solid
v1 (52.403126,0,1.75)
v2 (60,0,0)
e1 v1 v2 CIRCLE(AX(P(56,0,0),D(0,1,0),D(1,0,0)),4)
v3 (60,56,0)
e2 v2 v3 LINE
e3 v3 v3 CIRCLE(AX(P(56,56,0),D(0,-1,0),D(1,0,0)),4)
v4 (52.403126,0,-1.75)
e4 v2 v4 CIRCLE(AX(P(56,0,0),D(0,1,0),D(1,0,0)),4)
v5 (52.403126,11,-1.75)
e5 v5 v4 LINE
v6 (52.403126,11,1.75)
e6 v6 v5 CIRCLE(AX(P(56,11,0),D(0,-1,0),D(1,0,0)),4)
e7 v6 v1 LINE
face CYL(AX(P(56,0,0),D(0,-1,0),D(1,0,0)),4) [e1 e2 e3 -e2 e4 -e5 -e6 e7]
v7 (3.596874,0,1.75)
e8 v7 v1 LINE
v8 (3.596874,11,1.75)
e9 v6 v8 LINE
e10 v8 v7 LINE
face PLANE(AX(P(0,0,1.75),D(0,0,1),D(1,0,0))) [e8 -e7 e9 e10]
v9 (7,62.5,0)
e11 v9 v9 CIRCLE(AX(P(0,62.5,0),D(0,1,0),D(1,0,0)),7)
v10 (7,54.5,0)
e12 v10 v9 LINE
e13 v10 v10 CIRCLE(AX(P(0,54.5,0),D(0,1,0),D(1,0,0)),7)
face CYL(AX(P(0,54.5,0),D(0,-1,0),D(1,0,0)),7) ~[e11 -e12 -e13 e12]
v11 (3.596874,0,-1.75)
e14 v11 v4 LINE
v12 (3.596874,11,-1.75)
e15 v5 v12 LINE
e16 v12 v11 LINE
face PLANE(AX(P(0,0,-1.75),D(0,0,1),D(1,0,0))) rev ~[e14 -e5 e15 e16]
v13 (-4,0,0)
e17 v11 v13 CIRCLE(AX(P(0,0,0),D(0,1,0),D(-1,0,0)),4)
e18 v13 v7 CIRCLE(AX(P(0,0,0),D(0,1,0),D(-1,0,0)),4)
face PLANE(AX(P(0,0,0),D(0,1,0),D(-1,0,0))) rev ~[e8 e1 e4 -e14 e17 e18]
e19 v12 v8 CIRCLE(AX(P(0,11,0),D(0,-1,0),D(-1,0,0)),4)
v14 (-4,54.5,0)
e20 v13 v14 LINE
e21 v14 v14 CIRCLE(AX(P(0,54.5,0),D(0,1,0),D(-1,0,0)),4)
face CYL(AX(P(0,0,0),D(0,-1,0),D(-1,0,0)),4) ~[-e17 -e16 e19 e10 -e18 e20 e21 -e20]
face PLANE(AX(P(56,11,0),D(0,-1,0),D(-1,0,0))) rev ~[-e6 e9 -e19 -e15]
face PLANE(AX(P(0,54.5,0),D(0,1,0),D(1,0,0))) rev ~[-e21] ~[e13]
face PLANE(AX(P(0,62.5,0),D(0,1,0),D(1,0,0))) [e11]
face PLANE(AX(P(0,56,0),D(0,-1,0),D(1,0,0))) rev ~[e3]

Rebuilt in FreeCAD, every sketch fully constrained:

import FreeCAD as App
import Part
import Sketcher

V = App.Vector

doc = App.newDocument("Part")
params = doc.addObject("Spreadsheet::Sheet", "Params")
for row, (alias, value) in enumerate([
    ("sketch1_diameter", "8 mm"),
    ("pad1_length", "54.5 mm"),
    ("sketch2_diameter", "14 mm"),
    ("pad2_length", "8 mm"),
    ("sketch3_width", "56 mm"),
    ("sketch3_height", "11 mm"),
    ("pad3_length", "3.5 mm"),
    ("sketch4_diameter", "8 mm"),
    ("pad4_length", "56 mm"),
], start=1):
    params.set(f"A{row}", alias)
    params.set(f"B{row}", "=" + value)
    params.setAlias(f"B{row}", alias)

body = doc.addObject("PartDesign::Body", "Body")

sketch1 = body.newObject("Sketcher::SketchObject", "Sketch")
sketch1.AttachmentSupport = (doc.getObject("XZ_Plane"), [""])
sketch1.MapMode = "FlatFace"
sketch1.addGeometry(Part.Circle(V(0, 0, 0), V(0, 0, 1), 4), False)
sketch1.addConstraint([
    Sketcher.Constraint("Coincident", 0, 3, -1, 1),
    Sketcher.Constraint("Diameter", 0, 8.0),
])
sketch1.setExpression("Constraints[1]", "Params.sketch1_diameter")
pad1 = body.newObject("PartDesign::Pad", "Pad")
pad1.Profile = sketch1
pad1.setExpression("Length", "Params.pad1_length")
pad1.Reversed = True

sketch2 = body.newObject("Sketcher::SketchObject", "Sketch001")
sketch2.AttachmentSupport = (doc.getObject("XZ_Plane"), [""])
sketch2.MapMode = "FlatFace"
sketch2.AttachmentOffset = App.Placement(V(0, 0, -54.5), App.Rotation())
sketch2.addGeometry(Part.Circle(V(0, 0, 0), V(0, 0, 1), 7), False)
sketch2.addConstraint([
    Sketcher.Constraint("Coincident", 0, 3, -1, 1),
    Sketcher.Constraint("Diameter", 0, 14.0),
])
sketch2.setExpression("Constraints[1]", "Params.sketch2_diameter")
pad2 = body.newObject("PartDesign::Pad", "Pad001")
pad2.Profile = sketch2
pad2.setExpression("Length", "Params.pad2_length")
pad2.Reversed = True

sketch3 = body.newObject("Sketcher::SketchObject", "Sketch002")
sketch3.AttachmentSupport = (doc.getObject("XY_Plane"), [""])
sketch3.MapMode = "FlatFace"
sketch3.addGeometry([
    Part.LineSegment(V(0, 11, 0), V(0, 0, 0)),
    Part.LineSegment(V(0, 0, 0), V(56, 0, 0)),
    Part.LineSegment(V(56, 0, 0), V(56, 11, 0)),
    Part.LineSegment(V(56, 11, 0), V(0, 11, 0)),
], False)
sketch3.addConstraint([
    Sketcher.Constraint("Coincident", 0, 2, 1, 1),
    Sketcher.Constraint("Coincident", 1, 2, 2, 1),
    Sketcher.Constraint("Coincident", 2, 2, 3, 1),
    Sketcher.Constraint("Coincident", 3, 2, 0, 1),
    Sketcher.Constraint("Vertical", 0),
    Sketcher.Constraint("Horizontal", 1),
    Sketcher.Constraint("Vertical", 2),
    Sketcher.Constraint("Horizontal", 3),
    Sketcher.Constraint("Coincident", 0, 2, -1, 1),
    Sketcher.Constraint("DistanceX", 1, 1, 1, 2, 56.0),
    Sketcher.Constraint("DistanceY", 0, 2, 0, 1, 11.0),
])
sketch3.setExpression("Constraints[9]", "Params.sketch3_width")
sketch3.setExpression("Constraints[10]", "Params.sketch3_height")
pad3 = body.newObject("PartDesign::Pad", "Pad002")
pad3.Profile = sketch3
pad3.setExpression("Length", "Params.pad3_length")
pad3.Midplane = True

sketch4 = body.newObject("Sketcher::SketchObject", "Sketch003")
sketch4.AttachmentSupport = (doc.getObject("XZ_Plane"), [""])
sketch4.MapMode = "FlatFace"
sketch4.addGeometry(Part.Circle(V(56, 0, 0), V(0, 0, 1), 4), False)
sketch4.addConstraint([
    Sketcher.Constraint("PointOnObject", 0, 3, -1),
    Sketcher.Constraint("Diameter", 0, 8.0),
    Sketcher.Constraint("DistanceX", -1, 1, 0, 3, 56.0),
])
sketch4.setExpression("Constraints[1]", "Params.sketch4_diameter")
pad4 = body.newObject("PartDesign::Pad", "Pad003")
pad4.Profile = sketch4
pad4.setExpression("Length", "Params.pad4_length")
pad4.Reversed = True

doc.recompute()
